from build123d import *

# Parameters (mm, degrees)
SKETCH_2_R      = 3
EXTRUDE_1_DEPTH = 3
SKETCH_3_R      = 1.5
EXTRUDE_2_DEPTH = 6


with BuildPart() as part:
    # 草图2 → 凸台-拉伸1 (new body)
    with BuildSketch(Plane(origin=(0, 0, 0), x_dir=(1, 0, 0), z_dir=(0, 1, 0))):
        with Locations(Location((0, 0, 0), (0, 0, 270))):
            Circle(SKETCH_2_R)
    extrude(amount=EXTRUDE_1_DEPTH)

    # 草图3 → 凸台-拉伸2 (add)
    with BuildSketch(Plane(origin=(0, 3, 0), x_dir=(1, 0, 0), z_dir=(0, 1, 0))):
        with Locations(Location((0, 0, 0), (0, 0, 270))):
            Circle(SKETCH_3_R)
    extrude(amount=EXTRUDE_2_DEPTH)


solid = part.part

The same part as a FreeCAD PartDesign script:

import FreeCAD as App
import Part
import Sketcher

V = App.Vector
Q = App.Units.Quantity

doc = App.newDocument("Part")
body = doc.addObject("PartDesign::Body", "Body")

# Sketch on XZ plane
sketch1 = body.newObject("Sketcher::SketchObject", "Sketch")
sketch1.AttachmentSupport = (doc.getObject("XZ_Plane"), [""])
sketch1.MapMode = "FlatFace"
sketch1.addGeometry(Part.Circle(V(0, 0, 0), V(0, 0, 1), 3), False)
sketch1.addConstraint([
    Sketcher.Constraint("Coincident", 0, 3, -1, 1),
    Sketcher.Constraint("Diameter", 0, Q("6 mm")),
])
pad1 = body.newObject("PartDesign::Pad", "Pad")
pad1.Profile = sketch1
pad1.Length = 3
pad1.Reversed = True

# Sketch on XZ plane
sketch2 = body.newObject("Sketcher::SketchObject", "Sketch001")
sketch2.AttachmentSupport = (doc.getObject("XZ_Plane"), [""])
sketch2.MapMode = "FlatFace"
sketch2.AttachmentOffset = App.Placement(V(0, 0, -3), App.Rotation())
sketch2.addGeometry(Part.Circle(V(0, 0, 0), V(0, 0, 1), 1.5), False)
sketch2.addConstraint([
    Sketcher.Constraint("Coincident", 0, 3, -1, 1),
    Sketcher.Constraint("Diameter", 0, Q("3 mm")),
])
pad2 = body.newObject("PartDesign::Pad", "Pad001")
pad2.Profile = sketch2
pad2.Length = 6
pad2.Reversed = True

doc.recompute()
